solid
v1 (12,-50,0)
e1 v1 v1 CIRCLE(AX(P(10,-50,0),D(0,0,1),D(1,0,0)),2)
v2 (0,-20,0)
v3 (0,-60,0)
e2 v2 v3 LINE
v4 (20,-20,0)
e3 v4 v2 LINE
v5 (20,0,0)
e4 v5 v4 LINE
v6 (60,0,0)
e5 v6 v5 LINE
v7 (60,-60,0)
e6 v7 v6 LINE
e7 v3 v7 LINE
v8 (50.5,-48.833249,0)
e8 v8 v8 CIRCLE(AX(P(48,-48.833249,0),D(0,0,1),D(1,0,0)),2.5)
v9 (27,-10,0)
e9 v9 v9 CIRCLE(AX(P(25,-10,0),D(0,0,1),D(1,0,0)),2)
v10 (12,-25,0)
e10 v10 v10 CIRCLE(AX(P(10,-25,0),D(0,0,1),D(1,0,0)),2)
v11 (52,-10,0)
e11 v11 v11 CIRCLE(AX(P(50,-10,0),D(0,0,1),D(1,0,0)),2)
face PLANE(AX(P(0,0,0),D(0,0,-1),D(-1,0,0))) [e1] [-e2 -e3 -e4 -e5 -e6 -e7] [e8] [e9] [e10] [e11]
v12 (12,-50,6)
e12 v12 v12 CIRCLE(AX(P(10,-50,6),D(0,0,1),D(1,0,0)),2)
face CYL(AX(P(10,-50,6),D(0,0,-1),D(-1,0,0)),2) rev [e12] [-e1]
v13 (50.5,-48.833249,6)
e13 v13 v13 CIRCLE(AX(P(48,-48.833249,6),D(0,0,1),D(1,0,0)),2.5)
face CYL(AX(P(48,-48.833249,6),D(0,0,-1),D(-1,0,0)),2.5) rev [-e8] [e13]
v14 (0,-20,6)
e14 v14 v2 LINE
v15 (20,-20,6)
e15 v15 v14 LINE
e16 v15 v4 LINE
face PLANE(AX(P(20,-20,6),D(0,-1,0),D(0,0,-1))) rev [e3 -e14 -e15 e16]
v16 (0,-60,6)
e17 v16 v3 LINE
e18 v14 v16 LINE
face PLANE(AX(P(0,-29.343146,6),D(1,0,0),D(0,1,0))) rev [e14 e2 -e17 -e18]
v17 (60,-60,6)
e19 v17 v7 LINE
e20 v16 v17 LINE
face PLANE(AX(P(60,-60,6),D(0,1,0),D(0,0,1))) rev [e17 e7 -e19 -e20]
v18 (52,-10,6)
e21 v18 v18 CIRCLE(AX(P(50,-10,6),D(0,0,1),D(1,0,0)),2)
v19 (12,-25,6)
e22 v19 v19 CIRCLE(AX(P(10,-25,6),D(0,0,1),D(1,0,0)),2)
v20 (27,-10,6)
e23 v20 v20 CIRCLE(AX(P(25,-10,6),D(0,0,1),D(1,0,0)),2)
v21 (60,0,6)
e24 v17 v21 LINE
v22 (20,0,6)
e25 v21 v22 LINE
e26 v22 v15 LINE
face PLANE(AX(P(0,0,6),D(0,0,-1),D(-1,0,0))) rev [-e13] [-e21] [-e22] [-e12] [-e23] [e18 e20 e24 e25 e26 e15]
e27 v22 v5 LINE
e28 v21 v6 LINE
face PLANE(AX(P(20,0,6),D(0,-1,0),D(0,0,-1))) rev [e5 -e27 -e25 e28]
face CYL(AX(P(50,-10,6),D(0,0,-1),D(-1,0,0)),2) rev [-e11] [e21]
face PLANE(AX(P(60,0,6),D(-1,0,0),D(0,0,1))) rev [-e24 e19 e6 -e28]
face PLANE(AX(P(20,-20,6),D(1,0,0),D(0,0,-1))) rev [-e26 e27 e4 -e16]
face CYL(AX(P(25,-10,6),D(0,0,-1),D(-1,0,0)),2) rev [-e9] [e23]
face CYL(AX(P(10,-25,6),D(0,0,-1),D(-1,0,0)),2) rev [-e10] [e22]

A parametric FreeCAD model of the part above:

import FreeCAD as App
import Part
import Sketcher
Q = App.Units.Quantity

doc = App.newDocument("Part")
body = doc.addObject("PartDesign::Body", "Body")

sketch1 = doc.addObject("Sketcher::SketchObject", "Sketch")
body.addObject(sketch1)
sketch1.AttachmentSupport = (doc.XY_Plane, [""])
sketch1.MapMode = "FlatFace"
sketch1.addGeometry([
    Part.LineSegment(App.Vector(60, 0, 0), App.Vector(20, 0, 0)),
    Part.LineSegment(App.Vector(20, 0, 0), App.Vector(20, -20, 0)),
    Part.LineSegment(App.Vector(20, -20, 0), App.Vector(0, -20, 0)),
    Part.LineSegment(App.Vector(0, -20, 0), App.Vector(0, -60, 0)),
    Part.LineSegment(App.Vector(0, -60, 0), App.Vector(60, -60, 0)),
    Part.LineSegment(App.Vector(60, -60, 0), App.Vector(60, 0, 0)),
    Part.Circle(App.Vector(48, -48.8, 0), App.Vector(0, 0, 1), 2.5),
    Part.Circle(App.Vector(10, -50, 0), App.Vector(0, 0, 1), 2),
    Part.Circle(App.Vector(50, -10, 0), App.Vector(0, 0, 1), 2),
    Part.Circle(App.Vector(10, -25, 0), App.Vector(0, 0, 1), 2),
    Part.Circle(App.Vector(25, -10, 0), App.Vector(0, 0, 1), 2),
], False)
sketch1.addConstraint([
    Sketcher.Constraint("Coincident", 0, 2, 1, 1),
    Sketcher.Constraint("Coincident", 1, 2, 2, 1),
    Sketcher.Constraint("Coincident", 2, 2, 3, 1),
    Sketcher.Constraint("Coincident", 3, 2, 4, 1),
    Sketcher.Constraint("Coincident", 4, 2, 5, 1),
    Sketcher.Constraint("Coincident", 5, 2, 0, 1),
    Sketcher.Constraint("Horizontal", 0),
    Sketcher.Constraint("Vertical", 1),
    Sketcher.Constraint("Horizontal", 2),
    Sketcher.Constraint("Vertical", 3),
    Sketcher.Constraint("Horizontal", 4),
    Sketcher.Constraint("Vertical", 5),
    Sketcher.Constraint("Equal", 7, 8),
    Sketcher.Constraint("Equal", 8, 9),
    Sketcher.Constraint("Equal", 9, 10),
    Sketcher.Constraint("PointOnObject", 0, 2, -1),
    Sketcher.Constraint("PointOnObject", 2, 2, -2),
    Sketcher.Constraint("Horizontal", 8, 3, 10, 3),
    Sketcher.Constraint("Vertical", 7, 3, 9, 3),
    Sketcher.Constraint("Equal", 2, 1),
    Sketcher.Constraint("Equal", 0, 3),
    Sketcher.Constraint("Diameter", 6, Q("5 mm")),
    Sketcher.Constraint("Diameter", 7, Q("4 mm")),
    Sketcher.Constraint("DistanceX", 0, 2, 0, 1, Q("40 mm")),
    Sketcher.Constraint("DistanceX", 2, 2, 2, 1, Q("20 mm")),
    Sketcher.Constraint("DistanceX", -1, 1, 6, 3, Q("48 mm")),
    Sketcher.Constraint("DistanceX", -1, 1, 7, 3, Q("10 mm")),
    Sketcher.Constraint("DistanceY", 7, 3, -1, 1, Q("50 mm")),
    Sketcher.Constraint("DistanceX", -1, 1, 8, 3, Q("50 mm")),
    Sketcher.Constraint("DistanceY", 8, 3, -1, 1, Q("10 mm")),
    Sketcher.Constraint("DistanceY", 9, 3, -1, 1, Q("25 mm")),
    Sketcher.Constraint("DistanceX", -1, 1, 10, 3, Q("25 mm")),
    Sketcher.Constraint("DistanceY", 6, 3, -1, 1, Q("48.833249 mm")),
])
pad1 = doc.addObject("PartDesign::Pad", "Pad")
body.addObject(pad1)
pad1.Profile = sketch1
pad1.Length = 6

doc.recompute()
